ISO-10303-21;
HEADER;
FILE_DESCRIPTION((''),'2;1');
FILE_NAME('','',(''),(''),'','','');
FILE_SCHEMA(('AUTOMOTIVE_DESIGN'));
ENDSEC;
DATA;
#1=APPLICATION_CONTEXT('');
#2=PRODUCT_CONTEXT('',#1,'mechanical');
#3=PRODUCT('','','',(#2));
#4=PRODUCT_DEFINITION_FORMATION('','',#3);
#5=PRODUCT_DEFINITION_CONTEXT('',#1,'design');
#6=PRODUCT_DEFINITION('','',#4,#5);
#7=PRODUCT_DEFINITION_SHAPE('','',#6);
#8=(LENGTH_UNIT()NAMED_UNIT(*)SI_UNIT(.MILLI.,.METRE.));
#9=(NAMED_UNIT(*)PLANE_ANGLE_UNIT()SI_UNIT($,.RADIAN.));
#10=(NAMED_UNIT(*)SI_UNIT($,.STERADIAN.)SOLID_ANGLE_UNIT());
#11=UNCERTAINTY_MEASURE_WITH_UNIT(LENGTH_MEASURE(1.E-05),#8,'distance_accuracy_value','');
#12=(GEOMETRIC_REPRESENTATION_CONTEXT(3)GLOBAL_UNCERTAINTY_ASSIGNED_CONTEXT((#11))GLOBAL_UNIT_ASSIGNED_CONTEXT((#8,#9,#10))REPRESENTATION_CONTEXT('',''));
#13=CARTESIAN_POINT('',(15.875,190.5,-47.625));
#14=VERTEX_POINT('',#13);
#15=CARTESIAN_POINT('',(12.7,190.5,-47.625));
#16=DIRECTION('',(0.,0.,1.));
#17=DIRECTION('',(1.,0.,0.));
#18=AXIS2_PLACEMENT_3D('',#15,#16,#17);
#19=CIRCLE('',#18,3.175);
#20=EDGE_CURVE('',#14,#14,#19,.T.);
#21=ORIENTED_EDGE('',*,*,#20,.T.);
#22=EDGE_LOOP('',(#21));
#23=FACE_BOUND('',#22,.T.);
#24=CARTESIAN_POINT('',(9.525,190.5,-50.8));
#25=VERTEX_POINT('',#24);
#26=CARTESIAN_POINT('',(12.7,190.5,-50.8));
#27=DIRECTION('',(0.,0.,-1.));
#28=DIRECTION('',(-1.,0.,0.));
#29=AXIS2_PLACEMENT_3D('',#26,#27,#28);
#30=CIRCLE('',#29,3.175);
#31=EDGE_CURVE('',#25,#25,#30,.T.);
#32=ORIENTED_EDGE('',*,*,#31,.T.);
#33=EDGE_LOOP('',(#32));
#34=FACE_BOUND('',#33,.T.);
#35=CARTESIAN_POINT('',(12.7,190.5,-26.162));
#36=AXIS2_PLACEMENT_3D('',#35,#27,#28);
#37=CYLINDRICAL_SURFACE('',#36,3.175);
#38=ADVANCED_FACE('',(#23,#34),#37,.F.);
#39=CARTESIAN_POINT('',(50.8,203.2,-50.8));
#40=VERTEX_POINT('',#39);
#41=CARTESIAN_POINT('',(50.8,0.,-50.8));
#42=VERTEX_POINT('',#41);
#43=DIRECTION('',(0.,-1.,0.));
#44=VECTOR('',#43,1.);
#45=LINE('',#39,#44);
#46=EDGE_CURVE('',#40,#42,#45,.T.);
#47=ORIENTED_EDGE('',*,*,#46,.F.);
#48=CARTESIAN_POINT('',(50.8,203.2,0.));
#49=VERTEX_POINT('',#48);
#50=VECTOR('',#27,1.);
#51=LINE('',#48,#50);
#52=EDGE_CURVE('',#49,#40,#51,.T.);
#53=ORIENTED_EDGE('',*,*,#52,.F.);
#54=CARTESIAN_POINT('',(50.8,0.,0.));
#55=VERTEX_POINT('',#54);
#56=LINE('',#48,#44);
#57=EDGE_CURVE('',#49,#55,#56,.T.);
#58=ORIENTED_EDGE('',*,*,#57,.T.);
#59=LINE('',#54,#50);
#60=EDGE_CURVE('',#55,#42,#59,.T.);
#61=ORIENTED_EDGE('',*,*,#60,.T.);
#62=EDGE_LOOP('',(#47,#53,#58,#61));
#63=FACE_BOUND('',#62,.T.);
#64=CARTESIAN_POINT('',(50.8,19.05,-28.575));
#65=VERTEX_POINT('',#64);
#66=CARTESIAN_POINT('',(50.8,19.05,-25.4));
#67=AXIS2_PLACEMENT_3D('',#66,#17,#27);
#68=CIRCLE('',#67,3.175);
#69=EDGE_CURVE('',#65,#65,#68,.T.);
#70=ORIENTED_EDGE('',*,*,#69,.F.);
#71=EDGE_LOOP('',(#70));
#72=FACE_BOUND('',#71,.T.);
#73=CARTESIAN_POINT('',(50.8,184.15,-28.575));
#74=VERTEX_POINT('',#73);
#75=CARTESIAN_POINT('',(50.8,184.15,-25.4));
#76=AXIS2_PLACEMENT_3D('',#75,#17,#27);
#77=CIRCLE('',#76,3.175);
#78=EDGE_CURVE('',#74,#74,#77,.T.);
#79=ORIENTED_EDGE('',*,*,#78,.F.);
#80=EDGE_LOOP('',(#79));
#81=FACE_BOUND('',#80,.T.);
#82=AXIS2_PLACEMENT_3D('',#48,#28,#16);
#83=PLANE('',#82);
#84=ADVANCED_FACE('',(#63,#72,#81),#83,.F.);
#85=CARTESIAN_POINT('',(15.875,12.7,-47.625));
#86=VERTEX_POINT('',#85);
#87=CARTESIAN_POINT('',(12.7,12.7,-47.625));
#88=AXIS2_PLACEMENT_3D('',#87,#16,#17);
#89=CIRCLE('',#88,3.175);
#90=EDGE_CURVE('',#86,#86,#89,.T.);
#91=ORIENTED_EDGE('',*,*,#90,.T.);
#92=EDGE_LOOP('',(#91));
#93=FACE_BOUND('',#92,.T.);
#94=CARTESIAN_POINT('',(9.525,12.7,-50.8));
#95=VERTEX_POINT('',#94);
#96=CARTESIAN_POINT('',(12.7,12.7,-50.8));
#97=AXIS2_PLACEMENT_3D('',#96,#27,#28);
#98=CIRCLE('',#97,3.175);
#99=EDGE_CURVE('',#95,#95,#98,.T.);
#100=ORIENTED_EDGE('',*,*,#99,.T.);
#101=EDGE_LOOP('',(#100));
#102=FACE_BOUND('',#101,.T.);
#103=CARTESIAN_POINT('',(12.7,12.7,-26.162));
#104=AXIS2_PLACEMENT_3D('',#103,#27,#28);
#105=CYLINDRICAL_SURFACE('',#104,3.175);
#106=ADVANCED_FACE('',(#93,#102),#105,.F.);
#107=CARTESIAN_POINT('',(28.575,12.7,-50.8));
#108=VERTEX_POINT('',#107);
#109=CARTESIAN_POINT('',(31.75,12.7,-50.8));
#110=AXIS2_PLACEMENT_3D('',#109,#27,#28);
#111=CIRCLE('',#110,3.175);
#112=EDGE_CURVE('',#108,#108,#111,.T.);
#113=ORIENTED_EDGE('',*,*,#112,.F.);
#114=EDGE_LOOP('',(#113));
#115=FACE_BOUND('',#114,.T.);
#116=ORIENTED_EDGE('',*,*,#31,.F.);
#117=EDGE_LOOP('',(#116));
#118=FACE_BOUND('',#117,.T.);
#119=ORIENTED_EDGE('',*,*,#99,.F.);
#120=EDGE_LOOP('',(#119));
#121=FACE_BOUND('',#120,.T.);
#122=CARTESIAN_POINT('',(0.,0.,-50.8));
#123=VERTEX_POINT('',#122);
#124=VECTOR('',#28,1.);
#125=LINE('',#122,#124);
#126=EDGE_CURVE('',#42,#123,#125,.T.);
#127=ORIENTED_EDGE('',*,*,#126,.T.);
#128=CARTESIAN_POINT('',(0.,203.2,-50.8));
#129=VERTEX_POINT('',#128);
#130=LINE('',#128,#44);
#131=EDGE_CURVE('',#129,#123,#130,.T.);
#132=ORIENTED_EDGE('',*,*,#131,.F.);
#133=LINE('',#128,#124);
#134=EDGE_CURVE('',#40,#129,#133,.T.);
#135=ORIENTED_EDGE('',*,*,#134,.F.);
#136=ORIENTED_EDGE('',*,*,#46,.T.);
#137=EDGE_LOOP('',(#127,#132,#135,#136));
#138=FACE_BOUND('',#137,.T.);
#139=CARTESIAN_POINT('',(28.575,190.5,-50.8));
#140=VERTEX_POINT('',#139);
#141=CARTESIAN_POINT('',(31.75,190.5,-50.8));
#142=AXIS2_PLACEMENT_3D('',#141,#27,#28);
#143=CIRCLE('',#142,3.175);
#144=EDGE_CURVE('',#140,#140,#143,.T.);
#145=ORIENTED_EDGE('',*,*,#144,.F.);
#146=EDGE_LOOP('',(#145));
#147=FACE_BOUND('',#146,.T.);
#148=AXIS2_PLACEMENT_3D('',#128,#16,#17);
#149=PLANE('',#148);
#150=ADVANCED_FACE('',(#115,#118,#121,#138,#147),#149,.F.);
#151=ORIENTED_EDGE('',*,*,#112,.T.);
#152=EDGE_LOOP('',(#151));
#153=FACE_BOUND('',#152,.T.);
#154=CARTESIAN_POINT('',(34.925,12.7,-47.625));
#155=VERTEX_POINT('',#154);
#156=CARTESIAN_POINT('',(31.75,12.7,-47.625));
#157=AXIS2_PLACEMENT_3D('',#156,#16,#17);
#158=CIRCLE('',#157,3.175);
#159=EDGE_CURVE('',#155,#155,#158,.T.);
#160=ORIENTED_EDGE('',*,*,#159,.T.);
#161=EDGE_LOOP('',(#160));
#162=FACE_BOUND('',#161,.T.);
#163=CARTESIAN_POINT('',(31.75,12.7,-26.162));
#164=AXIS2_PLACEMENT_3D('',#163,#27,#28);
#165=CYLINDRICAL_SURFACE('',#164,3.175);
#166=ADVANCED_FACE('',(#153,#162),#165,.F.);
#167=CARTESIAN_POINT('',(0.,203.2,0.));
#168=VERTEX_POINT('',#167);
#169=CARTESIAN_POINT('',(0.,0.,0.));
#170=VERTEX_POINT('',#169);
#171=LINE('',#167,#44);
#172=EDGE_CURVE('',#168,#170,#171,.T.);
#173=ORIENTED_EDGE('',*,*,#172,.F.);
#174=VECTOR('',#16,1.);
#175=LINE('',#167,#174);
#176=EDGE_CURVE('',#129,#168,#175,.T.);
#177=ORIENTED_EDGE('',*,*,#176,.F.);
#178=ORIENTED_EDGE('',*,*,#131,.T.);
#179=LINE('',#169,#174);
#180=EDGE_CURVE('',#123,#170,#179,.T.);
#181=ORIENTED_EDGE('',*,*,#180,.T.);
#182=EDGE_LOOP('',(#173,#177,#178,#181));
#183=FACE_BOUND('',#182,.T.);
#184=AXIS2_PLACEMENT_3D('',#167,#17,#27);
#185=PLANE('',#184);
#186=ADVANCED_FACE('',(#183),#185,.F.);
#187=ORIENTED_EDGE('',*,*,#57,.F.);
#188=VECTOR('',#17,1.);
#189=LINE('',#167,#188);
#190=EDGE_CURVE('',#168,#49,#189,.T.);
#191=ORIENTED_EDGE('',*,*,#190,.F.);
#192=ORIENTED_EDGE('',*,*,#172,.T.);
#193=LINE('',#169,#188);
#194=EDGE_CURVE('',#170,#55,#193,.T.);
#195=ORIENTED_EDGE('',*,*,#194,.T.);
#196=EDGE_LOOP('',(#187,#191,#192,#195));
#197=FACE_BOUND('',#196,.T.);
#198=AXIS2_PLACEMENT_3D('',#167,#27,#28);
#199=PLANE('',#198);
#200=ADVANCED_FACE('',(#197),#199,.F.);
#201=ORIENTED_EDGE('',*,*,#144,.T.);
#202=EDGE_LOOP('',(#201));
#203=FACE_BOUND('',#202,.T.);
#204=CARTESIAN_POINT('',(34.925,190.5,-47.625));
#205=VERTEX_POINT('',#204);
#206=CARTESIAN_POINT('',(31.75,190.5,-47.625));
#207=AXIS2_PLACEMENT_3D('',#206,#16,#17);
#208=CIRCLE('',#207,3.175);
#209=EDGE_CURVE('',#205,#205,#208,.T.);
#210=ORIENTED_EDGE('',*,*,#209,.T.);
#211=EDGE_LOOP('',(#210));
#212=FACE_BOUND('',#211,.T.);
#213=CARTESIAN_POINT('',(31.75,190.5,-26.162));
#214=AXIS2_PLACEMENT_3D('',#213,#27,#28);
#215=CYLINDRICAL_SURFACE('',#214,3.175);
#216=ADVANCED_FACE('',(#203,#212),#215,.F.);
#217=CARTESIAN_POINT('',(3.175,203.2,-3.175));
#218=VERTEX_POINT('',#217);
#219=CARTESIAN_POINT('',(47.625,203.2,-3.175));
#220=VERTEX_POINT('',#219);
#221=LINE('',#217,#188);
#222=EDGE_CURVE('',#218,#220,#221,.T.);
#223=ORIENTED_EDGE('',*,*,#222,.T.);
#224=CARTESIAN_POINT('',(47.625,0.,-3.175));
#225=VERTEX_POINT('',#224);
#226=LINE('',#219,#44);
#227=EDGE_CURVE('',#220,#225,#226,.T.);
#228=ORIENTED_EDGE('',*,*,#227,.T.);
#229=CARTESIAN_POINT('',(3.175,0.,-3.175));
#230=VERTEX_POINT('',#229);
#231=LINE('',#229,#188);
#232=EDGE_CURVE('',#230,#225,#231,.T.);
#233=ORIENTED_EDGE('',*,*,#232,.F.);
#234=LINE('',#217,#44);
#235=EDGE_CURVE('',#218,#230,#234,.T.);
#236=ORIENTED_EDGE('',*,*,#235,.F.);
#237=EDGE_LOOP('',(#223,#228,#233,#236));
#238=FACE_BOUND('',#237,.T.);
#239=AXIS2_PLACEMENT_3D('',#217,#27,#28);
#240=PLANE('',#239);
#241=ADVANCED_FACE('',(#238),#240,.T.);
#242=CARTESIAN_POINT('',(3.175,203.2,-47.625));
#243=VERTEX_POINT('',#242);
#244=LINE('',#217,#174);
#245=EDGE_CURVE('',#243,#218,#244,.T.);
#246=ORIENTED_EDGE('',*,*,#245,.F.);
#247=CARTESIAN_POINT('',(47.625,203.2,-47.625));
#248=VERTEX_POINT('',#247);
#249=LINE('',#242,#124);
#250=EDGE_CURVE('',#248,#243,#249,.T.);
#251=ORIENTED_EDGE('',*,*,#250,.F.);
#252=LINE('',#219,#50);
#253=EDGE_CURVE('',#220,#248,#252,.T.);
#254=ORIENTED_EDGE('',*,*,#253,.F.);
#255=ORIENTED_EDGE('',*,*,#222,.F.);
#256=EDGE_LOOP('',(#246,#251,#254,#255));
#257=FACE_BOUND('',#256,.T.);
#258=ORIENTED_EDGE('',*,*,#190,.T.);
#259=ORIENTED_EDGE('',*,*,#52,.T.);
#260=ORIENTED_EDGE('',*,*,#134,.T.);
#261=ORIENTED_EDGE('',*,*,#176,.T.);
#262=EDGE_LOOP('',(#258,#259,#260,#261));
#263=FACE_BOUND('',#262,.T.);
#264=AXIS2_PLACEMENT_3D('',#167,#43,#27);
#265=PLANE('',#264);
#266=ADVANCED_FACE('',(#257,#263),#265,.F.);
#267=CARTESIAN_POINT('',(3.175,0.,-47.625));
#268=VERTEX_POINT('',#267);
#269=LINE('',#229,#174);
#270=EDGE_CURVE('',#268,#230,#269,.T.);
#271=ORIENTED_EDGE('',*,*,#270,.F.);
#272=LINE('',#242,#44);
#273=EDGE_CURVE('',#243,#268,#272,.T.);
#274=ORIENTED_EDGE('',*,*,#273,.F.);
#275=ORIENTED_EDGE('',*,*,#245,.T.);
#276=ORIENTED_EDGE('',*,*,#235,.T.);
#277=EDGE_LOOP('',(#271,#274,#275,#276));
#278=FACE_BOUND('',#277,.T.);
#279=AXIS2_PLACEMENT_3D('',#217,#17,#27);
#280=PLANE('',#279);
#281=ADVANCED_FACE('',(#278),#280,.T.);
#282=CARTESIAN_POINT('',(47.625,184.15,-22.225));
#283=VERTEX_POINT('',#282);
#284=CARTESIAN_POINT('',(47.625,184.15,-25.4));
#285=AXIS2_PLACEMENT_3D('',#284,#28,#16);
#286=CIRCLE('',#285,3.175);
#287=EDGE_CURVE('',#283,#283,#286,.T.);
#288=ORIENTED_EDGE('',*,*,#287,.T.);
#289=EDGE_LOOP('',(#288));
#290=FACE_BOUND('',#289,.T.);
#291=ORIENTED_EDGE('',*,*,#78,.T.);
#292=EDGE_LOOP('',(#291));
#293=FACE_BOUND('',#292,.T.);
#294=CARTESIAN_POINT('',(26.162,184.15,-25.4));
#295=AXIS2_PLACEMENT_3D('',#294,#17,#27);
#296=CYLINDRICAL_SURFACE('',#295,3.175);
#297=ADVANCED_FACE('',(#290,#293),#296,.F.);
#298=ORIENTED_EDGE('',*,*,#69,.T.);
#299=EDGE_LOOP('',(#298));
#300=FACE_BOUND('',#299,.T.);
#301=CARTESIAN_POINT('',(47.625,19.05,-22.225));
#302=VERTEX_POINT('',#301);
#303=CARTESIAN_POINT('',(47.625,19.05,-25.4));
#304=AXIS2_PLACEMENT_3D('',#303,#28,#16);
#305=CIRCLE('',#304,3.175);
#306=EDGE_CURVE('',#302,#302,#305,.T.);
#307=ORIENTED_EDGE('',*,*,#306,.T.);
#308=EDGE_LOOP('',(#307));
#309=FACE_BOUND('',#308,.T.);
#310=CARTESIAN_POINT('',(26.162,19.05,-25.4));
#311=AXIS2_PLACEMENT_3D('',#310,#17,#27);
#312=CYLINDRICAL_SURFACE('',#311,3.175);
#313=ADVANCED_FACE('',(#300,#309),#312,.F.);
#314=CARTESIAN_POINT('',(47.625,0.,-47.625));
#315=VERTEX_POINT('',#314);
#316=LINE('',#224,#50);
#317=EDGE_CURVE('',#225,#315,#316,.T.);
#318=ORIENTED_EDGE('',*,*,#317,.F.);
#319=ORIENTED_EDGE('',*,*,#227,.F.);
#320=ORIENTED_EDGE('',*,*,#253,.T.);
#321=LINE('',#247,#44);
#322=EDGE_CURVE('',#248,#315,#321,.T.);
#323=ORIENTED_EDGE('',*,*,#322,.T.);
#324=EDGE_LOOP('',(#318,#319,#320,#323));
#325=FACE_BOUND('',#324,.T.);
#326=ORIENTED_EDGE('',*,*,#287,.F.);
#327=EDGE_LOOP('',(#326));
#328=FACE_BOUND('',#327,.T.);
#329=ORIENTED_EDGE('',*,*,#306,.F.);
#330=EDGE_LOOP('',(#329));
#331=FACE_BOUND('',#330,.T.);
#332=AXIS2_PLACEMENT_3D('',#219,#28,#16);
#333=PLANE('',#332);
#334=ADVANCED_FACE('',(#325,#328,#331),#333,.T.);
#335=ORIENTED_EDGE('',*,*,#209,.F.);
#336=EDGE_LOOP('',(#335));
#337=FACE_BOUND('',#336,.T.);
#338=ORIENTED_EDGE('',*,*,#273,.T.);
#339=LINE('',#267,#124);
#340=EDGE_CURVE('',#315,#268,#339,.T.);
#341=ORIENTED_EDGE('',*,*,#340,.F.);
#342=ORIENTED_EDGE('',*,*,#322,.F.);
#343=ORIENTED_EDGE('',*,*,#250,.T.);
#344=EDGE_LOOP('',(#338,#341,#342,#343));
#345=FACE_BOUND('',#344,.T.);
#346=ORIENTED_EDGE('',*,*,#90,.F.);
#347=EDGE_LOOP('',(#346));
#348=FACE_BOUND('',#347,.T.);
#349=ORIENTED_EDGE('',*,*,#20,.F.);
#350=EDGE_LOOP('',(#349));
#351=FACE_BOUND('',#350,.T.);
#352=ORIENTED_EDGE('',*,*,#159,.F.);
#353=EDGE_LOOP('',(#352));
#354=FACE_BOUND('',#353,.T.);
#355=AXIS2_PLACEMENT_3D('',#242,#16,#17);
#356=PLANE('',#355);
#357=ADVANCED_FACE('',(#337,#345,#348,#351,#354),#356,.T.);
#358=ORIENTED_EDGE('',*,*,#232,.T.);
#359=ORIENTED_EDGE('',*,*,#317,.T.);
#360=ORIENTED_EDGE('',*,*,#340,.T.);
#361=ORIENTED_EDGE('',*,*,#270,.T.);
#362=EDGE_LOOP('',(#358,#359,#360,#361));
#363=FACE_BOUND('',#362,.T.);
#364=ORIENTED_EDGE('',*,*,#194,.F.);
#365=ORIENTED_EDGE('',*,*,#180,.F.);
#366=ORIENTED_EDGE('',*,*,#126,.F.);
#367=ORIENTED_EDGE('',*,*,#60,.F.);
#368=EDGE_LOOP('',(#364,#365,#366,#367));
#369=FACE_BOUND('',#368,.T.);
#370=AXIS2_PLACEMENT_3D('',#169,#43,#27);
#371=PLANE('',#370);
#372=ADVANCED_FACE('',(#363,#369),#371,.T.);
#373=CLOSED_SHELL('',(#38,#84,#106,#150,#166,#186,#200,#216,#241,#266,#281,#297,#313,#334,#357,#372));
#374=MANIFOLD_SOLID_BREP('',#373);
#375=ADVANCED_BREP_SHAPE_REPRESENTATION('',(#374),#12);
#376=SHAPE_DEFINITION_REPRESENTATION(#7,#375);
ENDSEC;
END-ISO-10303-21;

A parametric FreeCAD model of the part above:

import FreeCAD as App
import Part
import Sketcher
Q = App.Units.Quantity


def add_polygon(sketch, points):
    """Adds a closed chain of lines whose ends are joined by coincident constraints."""
    first, n = sketch.GeometryCount, len(points)
    for a, b in zip(points, points[1:] + points[:1]):
        sketch.addGeometry(Part.LineSegment(App.Vector(*a, 0), App.Vector(*b, 0)), False)
    for i in range(n):
        sketch.addConstraint(Sketcher.Constraint("Coincident", first + i, 2, first + (i + 1) % n, 1))

doc = App.newDocument("Part")
body = doc.addObject("PartDesign::Body", "Body")

# Sketch on XZ plane
sketch1 = body.newObject("Sketcher::SketchObject", "Sketch")
sketch1.AttachmentSupport = (doc.getObject("XZ_Plane"), [""])
sketch1.MapMode = "FlatFace"
add_polygon(sketch1, [(0, -51), (0, 0), (51, 0), (51, -51)])  # lines 0-3
add_polygon(sketch1, [(48, -3), (3, -3), (3, -48), (48, -48)])  # lines 4-7
sketch1.addConstraint([
    Sketcher.Constraint("Vertical", 0),
    Sketcher.Constraint("Horizontal", 1),
    Sketcher.Constraint("Vertical", 2),
    Sketcher.Constraint("Horizontal", 3),
    Sketcher.Constraint("Horizontal", 4),
    Sketcher.Constraint("Vertical", 5),
    Sketcher.Constraint("Horizontal", 6),
    Sketcher.Constraint("Vertical", 7),
    Sketcher.Constraint("Coincident", 0, 2, -1, 1),
    Sketcher.Constraint("Equal", 3, 0),
    Sketcher.Constraint("Equal", 6, 5),
    Sketcher.Constraint("DistanceX", 1, 1, 1, 2, Q("2 in")),
    Sketcher.Constraint("DistanceX", 4, 2, 4, 1, Q("1.75 in")),
    Sketcher.Constraint("DistanceX", -1, 1, 4, 2, Q("0.125 in")),
    Sketcher.Constraint("DistanceY", 4, 2, -1, 1, Q("0.125 in")),
])
pad1 = body.newObject("PartDesign::Pad", "Pad")
pad1.Profile = sketch1
pad1.Length = Q("8 in")
pad1.Reversed = True

# Sketch on XY plane
sketch2 = body.newObject("Sketcher::SketchObject", "Sketch001")
sketch2.AttachmentSupport = (doc.getObject("XY_Plane"), [""])
sketch2.MapMode = "FlatFace"
sketch2.AttachmentOffset = App.Placement(App.Vector(0, 0, -2 * 25.4), App.Rotation())
sketch2.addGeometry([
    Part.Circle(App.Vector(12.7, 190.5, 0), App.Vector(0, 0, 1), 3.2),
    Part.Circle(App.Vector(31.8, 190.5, 0), App.Vector(0, 0, 1), 3.2),
    Part.Circle(App.Vector(31.8, 12.7, 0), App.Vector(0, 0, 1), 3.2),
    Part.Circle(App.Vector(12.7, 12.7, 0), App.Vector(0, 0, 1), 3.2),
], False)
sketch2.addConstraint([
    Sketcher.Constraint("Equal", 0, 1),
    Sketcher.Constraint("Equal", 1, 2),
    Sketcher.Constraint("Equal", 2, 3),
    Sketcher.Constraint("Horizontal", 0, 3, 1, 3),
    Sketcher.Constraint("Horizontal", 2, 3, 3, 3),
    Sketcher.Constraint("Vertical", 1, 3, 2, 3),
    Sketcher.Constraint("Vertical", 0, 3, 3, 3),
    Sketcher.Constraint("Diameter", 0, Q("0.25 in")),
    Sketcher.Constraint("DistanceY", 2, 3, 1, 3, Q("7 in")),
    Sketcher.Constraint("DistanceX", -1, 1, 0, 3, Q("0.5 in")),
    Sketcher.Constraint("DistanceY", -1, 1, 0, 3, Q("7.5 in")),
    Sketcher.Constraint("DistanceX", -1, 1, 1, 3, Q("1.25 in")),
])
pocket1 = body.newObject("PartDesign::Pocket", "Pocket")
pocket1.Profile = sketch2
pocket1.Length = Q("0.97 in")
pocket1.Reversed = True

# Sketch on YZ plane
sketch3 = body.newObject("Sketcher::SketchObject", "Sketch002")
sketch3.AttachmentSupport = (doc.getObject("YZ_Plane"), [""])
sketch3.MapMode = "FlatFace"
sketch3.AttachmentOffset = App.Placement(App.Vector(0, 0, 2 * 25.4), App.Rotation())
sketch3.addGeometry([
    Part.Circle(App.Vector(184.2, -25.4, 0), App.Vector(0, 0, 1), 3.2),
    Part.Circle(App.Vector(19.1, -25.4, 0), App.Vector(0, 0, 1), 3.2),
], False)
sketch3.addConstraint([
    Sketcher.Constraint("Equal", 0, 1),
    Sketcher.Constraint("Horizontal", 0, 3, 1, 3),
    Sketcher.Constraint("Diameter", 0, Q("0.25 in")),
    Sketcher.Constraint("DistanceY", 0, 3, -1, 1, Q("1 in")),
    Sketcher.Constraint("DistanceX", 1, 3, 0, 3, Q("6.5 in")),
    Sketcher.Constraint("DistanceX", -1, 1, 0, 3, Q("7.25 in")),
])
pocket2 = body.newObject("PartDesign::Pocket", "Pocket001")
pocket2.Profile = sketch3
pocket2.Length = Q("0.97 in")

doc.recompute()
